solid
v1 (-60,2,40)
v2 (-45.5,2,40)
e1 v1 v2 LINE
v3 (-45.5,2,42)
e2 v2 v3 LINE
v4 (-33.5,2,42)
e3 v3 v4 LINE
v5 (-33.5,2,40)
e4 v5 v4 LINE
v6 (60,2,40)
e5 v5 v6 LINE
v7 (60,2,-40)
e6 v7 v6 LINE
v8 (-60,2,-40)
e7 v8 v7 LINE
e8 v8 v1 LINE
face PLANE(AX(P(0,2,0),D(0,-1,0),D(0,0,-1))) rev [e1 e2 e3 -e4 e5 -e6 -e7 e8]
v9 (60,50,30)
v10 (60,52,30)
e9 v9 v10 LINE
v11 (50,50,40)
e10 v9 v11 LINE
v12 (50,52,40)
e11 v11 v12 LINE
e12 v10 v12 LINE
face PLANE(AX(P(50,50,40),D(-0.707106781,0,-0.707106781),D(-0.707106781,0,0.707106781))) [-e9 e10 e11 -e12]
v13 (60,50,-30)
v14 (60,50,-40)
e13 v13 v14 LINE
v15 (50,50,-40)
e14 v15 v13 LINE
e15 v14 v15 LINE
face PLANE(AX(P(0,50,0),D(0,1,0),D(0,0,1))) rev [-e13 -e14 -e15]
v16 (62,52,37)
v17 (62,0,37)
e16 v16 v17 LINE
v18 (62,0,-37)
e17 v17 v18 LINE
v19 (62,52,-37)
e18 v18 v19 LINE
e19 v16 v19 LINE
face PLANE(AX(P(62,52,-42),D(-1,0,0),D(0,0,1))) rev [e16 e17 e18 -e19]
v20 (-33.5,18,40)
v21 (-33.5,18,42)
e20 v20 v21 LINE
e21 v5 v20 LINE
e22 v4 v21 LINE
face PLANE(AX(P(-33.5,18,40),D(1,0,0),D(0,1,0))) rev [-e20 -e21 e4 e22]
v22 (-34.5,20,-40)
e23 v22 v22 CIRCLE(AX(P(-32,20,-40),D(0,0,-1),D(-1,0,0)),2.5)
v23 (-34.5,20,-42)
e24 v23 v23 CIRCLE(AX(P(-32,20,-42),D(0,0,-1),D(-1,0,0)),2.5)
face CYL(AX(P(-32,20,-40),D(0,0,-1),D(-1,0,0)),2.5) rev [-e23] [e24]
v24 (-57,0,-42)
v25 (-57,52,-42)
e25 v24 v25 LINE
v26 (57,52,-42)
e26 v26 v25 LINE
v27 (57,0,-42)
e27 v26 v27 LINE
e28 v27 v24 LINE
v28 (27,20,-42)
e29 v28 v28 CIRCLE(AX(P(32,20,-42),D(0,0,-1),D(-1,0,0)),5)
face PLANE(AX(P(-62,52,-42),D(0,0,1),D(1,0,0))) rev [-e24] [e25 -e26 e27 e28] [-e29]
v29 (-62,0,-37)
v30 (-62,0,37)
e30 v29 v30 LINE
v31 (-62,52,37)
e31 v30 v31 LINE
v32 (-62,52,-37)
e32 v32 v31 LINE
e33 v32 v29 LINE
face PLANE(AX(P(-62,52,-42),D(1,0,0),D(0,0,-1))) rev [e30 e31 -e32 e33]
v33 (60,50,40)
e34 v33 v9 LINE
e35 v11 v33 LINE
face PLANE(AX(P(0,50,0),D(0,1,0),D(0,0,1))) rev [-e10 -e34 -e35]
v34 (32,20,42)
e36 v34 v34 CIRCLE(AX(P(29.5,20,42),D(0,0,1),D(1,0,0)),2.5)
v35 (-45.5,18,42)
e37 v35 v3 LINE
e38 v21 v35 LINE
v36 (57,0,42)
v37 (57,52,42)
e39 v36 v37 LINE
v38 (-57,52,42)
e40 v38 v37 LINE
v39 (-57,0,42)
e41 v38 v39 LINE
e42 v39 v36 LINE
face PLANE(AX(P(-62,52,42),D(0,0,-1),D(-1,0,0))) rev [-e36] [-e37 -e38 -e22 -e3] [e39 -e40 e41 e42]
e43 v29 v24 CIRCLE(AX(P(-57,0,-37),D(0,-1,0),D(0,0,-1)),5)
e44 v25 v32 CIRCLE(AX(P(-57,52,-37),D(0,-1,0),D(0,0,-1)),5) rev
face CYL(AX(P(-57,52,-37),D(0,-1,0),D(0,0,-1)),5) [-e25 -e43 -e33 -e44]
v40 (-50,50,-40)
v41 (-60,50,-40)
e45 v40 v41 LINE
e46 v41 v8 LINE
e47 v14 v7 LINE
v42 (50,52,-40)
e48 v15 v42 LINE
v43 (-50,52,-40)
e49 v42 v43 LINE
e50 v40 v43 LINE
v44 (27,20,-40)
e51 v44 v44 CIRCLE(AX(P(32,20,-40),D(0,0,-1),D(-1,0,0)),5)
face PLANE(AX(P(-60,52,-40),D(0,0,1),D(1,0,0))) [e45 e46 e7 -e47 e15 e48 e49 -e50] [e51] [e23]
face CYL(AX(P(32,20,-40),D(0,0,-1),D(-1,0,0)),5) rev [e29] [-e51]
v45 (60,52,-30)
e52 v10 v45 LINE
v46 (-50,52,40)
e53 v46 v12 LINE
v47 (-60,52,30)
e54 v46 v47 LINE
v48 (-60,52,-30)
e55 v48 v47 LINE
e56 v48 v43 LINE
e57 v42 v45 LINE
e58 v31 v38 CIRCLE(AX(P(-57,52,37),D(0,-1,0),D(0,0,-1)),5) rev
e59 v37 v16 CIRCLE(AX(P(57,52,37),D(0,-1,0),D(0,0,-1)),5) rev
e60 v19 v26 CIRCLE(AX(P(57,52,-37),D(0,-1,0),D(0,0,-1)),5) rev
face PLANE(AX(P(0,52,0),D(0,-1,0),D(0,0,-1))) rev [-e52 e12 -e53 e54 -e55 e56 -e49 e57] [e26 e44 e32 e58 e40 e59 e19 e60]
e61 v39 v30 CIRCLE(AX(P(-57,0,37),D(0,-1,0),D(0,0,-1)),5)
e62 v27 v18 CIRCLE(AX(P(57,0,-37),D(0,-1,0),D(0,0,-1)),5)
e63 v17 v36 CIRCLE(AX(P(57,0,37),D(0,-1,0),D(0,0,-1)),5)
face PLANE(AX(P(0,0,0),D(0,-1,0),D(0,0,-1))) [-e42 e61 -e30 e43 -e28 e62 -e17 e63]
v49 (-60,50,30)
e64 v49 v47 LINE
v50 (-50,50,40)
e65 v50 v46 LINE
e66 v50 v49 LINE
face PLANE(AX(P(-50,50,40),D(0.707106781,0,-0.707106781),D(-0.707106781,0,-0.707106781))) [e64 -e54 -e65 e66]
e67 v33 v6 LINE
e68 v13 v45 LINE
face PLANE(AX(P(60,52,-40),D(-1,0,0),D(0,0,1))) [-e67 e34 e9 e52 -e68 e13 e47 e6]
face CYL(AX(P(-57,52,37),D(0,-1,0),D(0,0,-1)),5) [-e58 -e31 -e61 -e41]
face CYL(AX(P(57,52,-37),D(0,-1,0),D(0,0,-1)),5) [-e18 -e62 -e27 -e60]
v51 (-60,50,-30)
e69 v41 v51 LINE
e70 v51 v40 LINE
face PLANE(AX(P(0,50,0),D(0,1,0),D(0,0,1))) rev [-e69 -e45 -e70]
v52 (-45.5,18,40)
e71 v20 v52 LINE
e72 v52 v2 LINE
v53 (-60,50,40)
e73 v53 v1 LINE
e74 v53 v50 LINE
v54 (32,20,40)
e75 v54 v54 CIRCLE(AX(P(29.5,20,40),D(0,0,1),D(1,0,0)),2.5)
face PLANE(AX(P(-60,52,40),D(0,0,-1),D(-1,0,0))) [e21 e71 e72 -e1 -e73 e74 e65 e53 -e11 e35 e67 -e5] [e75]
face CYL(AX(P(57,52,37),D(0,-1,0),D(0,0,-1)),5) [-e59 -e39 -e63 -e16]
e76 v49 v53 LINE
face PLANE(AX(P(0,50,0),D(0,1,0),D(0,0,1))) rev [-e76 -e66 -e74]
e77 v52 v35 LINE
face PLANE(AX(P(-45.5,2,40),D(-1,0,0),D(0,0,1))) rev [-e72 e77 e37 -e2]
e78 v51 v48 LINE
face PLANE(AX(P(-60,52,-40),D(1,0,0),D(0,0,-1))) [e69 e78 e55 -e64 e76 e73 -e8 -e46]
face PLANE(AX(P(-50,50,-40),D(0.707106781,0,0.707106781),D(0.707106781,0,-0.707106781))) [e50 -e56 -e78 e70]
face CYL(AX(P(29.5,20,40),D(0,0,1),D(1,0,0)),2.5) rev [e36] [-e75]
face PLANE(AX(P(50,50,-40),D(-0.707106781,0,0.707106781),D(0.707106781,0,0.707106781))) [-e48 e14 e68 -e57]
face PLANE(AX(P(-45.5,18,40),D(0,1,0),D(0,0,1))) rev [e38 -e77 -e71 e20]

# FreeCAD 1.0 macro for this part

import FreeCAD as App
import Part
import Sketcher

V = App.Vector
Q = App.Units.Quantity


def edges_at(feature, points):
    """Names of the edges that pass closest to the given points."""
    edges = feature.Shape.Edges
    near = lambda p: min(range(len(edges)), key=lambda i: edges[i].distToShape(Part.Vertex(*p))[0])
    return sorted({f"Edge{near(p) + 1}" for p in points})

doc = App.newDocument("Part")
body = doc.addObject("PartDesign::Body", "Body")

sketch1 = doc.addObject("Sketcher::SketchObject", "Sketch")
body.addObject(sketch1)
sketch1.AttachmentSupport = (doc.XZ_Plane, [""])
sketch1.MapMode = "FlatFace"
sketch1.addGeometry(Part.LineSegment(V(-60, -40, 0), V(-60, 40, 0)), False)
sketch1.addGeometry(Part.LineSegment(V(-60, 40, 0), V(60, 40, 0)), False)
sketch1.addGeometry(Part.LineSegment(V(60, 40, 0), V(60, -40, 0)), False)
sketch1.addGeometry(Part.LineSegment(V(60, -40, 0), V(-60, -40, 0)), False)
sketch1.addConstraint(Sketcher.Constraint("Coincident", 0, 2, 1, 1))
sketch1.addConstraint(Sketcher.Constraint("Coincident", 1, 2, 2, 1))
sketch1.addConstraint(Sketcher.Constraint("Coincident", 2, 2, 3, 1))
sketch1.addConstraint(Sketcher.Constraint("Coincident", 3, 2, 0, 1))
sketch1.addConstraint(Sketcher.Constraint("Vertical", 0))
sketch1.addConstraint(Sketcher.Constraint("Horizontal", 1))
sketch1.addConstraint(Sketcher.Constraint("Vertical", 2))
sketch1.addConstraint(Sketcher.Constraint("Horizontal", 3))
sketch1.addConstraint(Sketcher.Constraint("Symmetric", 0, 2, 2, 2, -1, 1))
sketch1.addConstraint(Sketcher.Constraint("DistanceX", 1, 1, 1, 2, Q("120 mm")))
sketch1.addConstraint(Sketcher.Constraint("DistanceY", 0, 1, 0, 2, Q("80 mm")))
pad1 = doc.addObject("PartDesign::Pad", "Pad")
body.addObject(pad1)
pad1.Profile = sketch1
pad1.Length = 2
pad1.Reversed = True

sketch2 = doc.addObject("Sketcher::SketchObject", "Sketch001")
body.addObject(sketch2)
sketch2.AttachmentSupport = (doc.XZ_Plane, [""])
sketch2.MapMode = "FlatFace"
sketch2.addGeometry(Part.LineSegment(V(-62, -42, 0), V(-62, 42, 0)), False)
sketch2.addGeometry(Part.LineSegment(V(-62, 42, 0), V(62, 42, 0)), False)
sketch2.addGeometry(Part.LineSegment(V(62, 42, 0), V(62, -42, 0)), False)
sketch2.addGeometry(Part.LineSegment(V(62, -42, 0), V(-62, -42, 0)), False)
sketch2.addGeometry(Part.LineSegment(V(60, 40, 0), V(-60, 40, 0)), False)
sketch2.addGeometry(Part.LineSegment(V(-60, 40, 0), V(-60, -40, 0)), False)
sketch2.addGeometry(Part.LineSegment(V(-60, -40, 0), V(60, -40, 0)), False)
sketch2.addGeometry(Part.LineSegment(V(60, -40, 0), V(60, 40, 0)), False)
sketch2.addConstraint(Sketcher.Constraint("Coincident", 0, 2, 1, 1))
sketch2.addConstraint(Sketcher.Constraint("Coincident", 1, 2, 2, 1))
sketch2.addConstraint(Sketcher.Constraint("Coincident", 2, 2, 3, 1))
sketch2.addConstraint(Sketcher.Constraint("Coincident", 3, 2, 0, 1))
sketch2.addConstraint(Sketcher.Constraint("Coincident", 4, 2, 5, 1))
sketch2.addConstraint(Sketcher.Constraint("Coincident", 5, 2, 6, 1))
sketch2.addConstraint(Sketcher.Constraint("Coincident", 6, 2, 7, 1))
sketch2.addConstraint(Sketcher.Constraint("Coincident", 7, 2, 4, 1))
sketch2.addConstraint(Sketcher.Constraint("Vertical", 0))
sketch2.addConstraint(Sketcher.Constraint("Horizontal", 1))
sketch2.addConstraint(Sketcher.Constraint("Vertical", 2))
sketch2.addConstraint(Sketcher.Constraint("Horizontal", 3))
sketch2.addConstraint(Sketcher.Constraint("Horizontal", 4))
sketch2.addConstraint(Sketcher.Constraint("Vertical", 5))
sketch2.addConstraint(Sketcher.Constraint("Horizontal", 6))
sketch2.addConstraint(Sketcher.Constraint("Vertical", 7))
sketch2.addConstraint(Sketcher.Constraint("Symmetric", 0, 2, 2, 2, -1, 1))
sketch2.addConstraint(Sketcher.Constraint("Symmetric", 4, 2, 6, 2, -1, 1))
sketch2.addConstraint(Sketcher.Constraint("DistanceX", 1, 1, 1, 2, Q("124 mm")))
sketch2.addConstraint(Sketcher.Constraint("DistanceX", 4, 2, 4, 1, Q("120 mm")))
sketch2.addConstraint(Sketcher.Constraint("DistanceY", 0, 1, 0, 2, Q("84 mm")))
sketch2.addConstraint(Sketcher.Constraint("DistanceY", 5, 2, 5, 1, Q("80 mm")))
pad2 = doc.addObject("PartDesign::Pad", "Pad001")
body.addObject(pad2)
pad2.Profile = sketch2
pad2.Length = 52
pad2.Reversed = True

sketch3 = doc.addObject("Sketcher::SketchObject", "Sketch002")
body.addObject(sketch3)
sketch3.AttachmentSupport = (doc.XY_Plane, [""])
sketch3.MapMode = "FlatFace"
sketch3.AttachmentOffset = App.Placement(V(0, 0, 42), App.Rotation())
sketch3.addGeometry(Part.LineSegment(V(-46, 18, 0), V(-46, 2, 0)), False)
sketch3.addGeometry(Part.LineSegment(V(-46, 2, 0), V(-34, 2, 0)), False)
sketch3.addGeometry(Part.LineSegment(V(-34, 2, 0), V(-34, 18, 0)), False)
sketch3.addGeometry(Part.LineSegment(V(-34, 18, 0), V(-46, 18, 0)), False)
sketch3.addConstraint(Sketcher.Constraint("Coincident", 0, 2, 1, 1))
sketch3.addConstraint(Sketcher.Constraint("Coincident", 1, 2, 2, 1))
sketch3.addConstraint(Sketcher.Constraint("Coincident", 2, 2, 3, 1))
sketch3.addConstraint(Sketcher.Constraint("Coincident", 3, 2, 0, 1))
sketch3.addConstraint(Sketcher.Constraint("Vertical", 0))
sketch3.addConstraint(Sketcher.Constraint("Horizontal", 1))
sketch3.addConstraint(Sketcher.Constraint("Vertical", 2))
sketch3.addConstraint(Sketcher.Constraint("Horizontal", 3))
sketch3.addConstraint(Sketcher.Constraint("DistanceX", 1, 1, 1, 2, Q("12 mm")))
sketch3.addConstraint(Sketcher.Constraint("DistanceY", 0, 2, 0, 1, Q("16 mm")))
sketch3.addConstraint(Sketcher.Constraint("DistanceY", -1, 1, 0, 2, Q("2 mm")))
sketch3.addConstraint(Sketcher.Constraint("DistanceX", 0, 2, -1, 1, Q("45.5 mm")))
pocket1 = doc.addObject("PartDesign::Pocket", "Pocket")
body.addObject(pocket1)
pocket1.Profile = sketch3
pocket1.Length = 2

sketch4 = doc.addObject("Sketcher::SketchObject", "Sketch003")
body.addObject(sketch4)
sketch4.AttachmentSupport = (doc.XY_Plane, [""])
sketch4.MapMode = "FlatFace"
sketch4.AttachmentOffset = App.Placement(V(0, 0, 42), App.Rotation())
sketch4.addGeometry(Part.Circle(V(29.5, 20, 0), V(0, 0, 1), 2.5), False)
sketch4.addConstraint(Sketcher.Constraint("Diameter", 0, Q("5 mm")))
sketch4.addConstraint(Sketcher.Constraint("DistanceY", -1, 1, 0, 3, Q("20 mm")))
sketch4.addConstraint(Sketcher.Constraint("DistanceX", -1, 1, 0, 3, Q("29.5 mm")))
pocket2 = doc.addObject("PartDesign::Pocket", "Pocket001")
body.addObject(pocket2)
pocket2.Profile = sketch4
pocket2.Length = 2

sketch5 = doc.addObject("Sketcher::SketchObject", "Sketch004")
body.addObject(sketch5)
sketch5.AttachmentSupport = (doc.XY_Plane, [""])
sketch5.MapMode = "FlatFace"
sketch5.AttachmentOffset = App.Placement(V(0, 0, -42), App.Rotation())
sketch5.addGeometry(Part.Circle(V(32, 20, 0), V(0, 0, 1), 5), False)
sketch5.addGeometry(Part.Circle(V(-32, 20, 0), V(0, 0, 1), 2.5), False)
sketch5.addConstraint(Sketcher.Constraint("Symmetric", 0, 3, 1, 3, -2))
sketch5.addConstraint(Sketcher.Constraint("Diameter", 0, Q("10 mm")))
sketch5.addConstraint(Sketcher.Constraint("Diameter", 1, Q("5 mm")))
sketch5.addConstraint(Sketcher.Constraint("DistanceX", -1, 1, 0, 3, Q("32 mm")))
sketch5.addConstraint(Sketcher.Constraint("DistanceY", -1, 1, 0, 3, Q("20 mm")))
pocket3 = doc.addObject("PartDesign::Pocket", "Pocket002")
body.addObject(pocket3)
pocket3.Profile = sketch5
pocket3.Length = 2
pocket3.Reversed = True
doc.recompute()

fillet = doc.addObject("PartDesign::Fillet", "Fillet")
body.addObject(fillet)
fillet.Base = (pocket3, edges_at(pocket3, [(62, 26, -42)]))
fillet.Radius = 5
doc.recompute()

fillet2 = doc.addObject("PartDesign::Fillet", "Fillet001")
body.addObject(fillet2)
fillet2.Base = (fillet, edges_at(fillet, [(62, 26, 42)]))
fillet2.Radius = 5
doc.recompute()

fillet3 = doc.addObject("PartDesign::Fillet", "Fillet002")
body.addObject(fillet3)
fillet3.Base = (fillet2, edges_at(fillet2, [(-62, 26, -42)]))
fillet3.Radius = 5
doc.recompute()

fillet4 = doc.addObject("PartDesign::Fillet", "Fillet003")
body.addObject(fillet4)
fillet4.Base = (fillet3, edges_at(fillet3, [(-62, 26, 42)]))
fillet4.Radius = 5

sketch6 = doc.addObject("Sketcher::SketchObject", "Sketch005")
body.addObject(sketch6)
sketch6.AttachmentSupport = (doc.XZ_Plane, [""])
sketch6.MapMode = "FlatFace"
sketch6.AttachmentOffset = App.Placement(V(0, 0, -52), App.Rotation())
sketch6.addGeometry(Part.LineSegment(V(-60, -30, 0), V(-50, -40, 0)), False)
sketch6.addGeometry(Part.LineSegment(V(-50, -40, 0), V(-60, -40, 0)), False)
sketch6.addGeometry(Part.LineSegment(V(-60, -40, 0), V(-60, -30, 0)), False)
sketch6.addGeometry(Part.LineSegment(V(-60, 30, 0), V(-60, 40, 0)), False)
sketch6.addGeometry(Part.LineSegment(V(-60, 40, 0), V(-50, 40, 0)), False)
sketch6.addGeometry(Part.LineSegment(V(-50, 40, 0), V(-60, 30, 0)), False)
sketch6.addGeometry(Part.LineSegment(V(60, 30, 0), V(50, 40, 0)), False)
sketch6.addGeometry(Part.LineSegment(V(50, 40, 0), V(60, 40, 0)), False)
sketch6.addGeometry(Part.LineSegment(V(60, 40, 0), V(60, 30, 0)), False)
sketch6.addGeometry(Part.LineSegment(V(60, -30, 0), V(60, -40, 0)), False)
sketch6.addGeometry(Part.LineSegment(V(60, -40, 0), V(50, -40, 0)), False)
sketch6.addGeometry(Part.LineSegment(V(50, -40, 0), V(60, -30, 0)), False)
sketch6.addConstraint(Sketcher.Constraint("Coincident", 0, 2, 1, 1))
sketch6.addConstraint(Sketcher.Constraint("Coincident", 1, 2, 2, 1))
sketch6.addConstraint(Sketcher.Constraint("Coincident", 2, 2, 0, 1))
sketch6.addConstraint(Sketcher.Constraint("Coincident", 3, 2, 4, 1))
sketch6.addConstraint(Sketcher.Constraint("Coincident", 4, 2, 5, 1))
sketch6.addConstraint(Sketcher.Constraint("Coincident", 5, 2, 3, 1))
sketch6.addConstraint(Sketcher.Constraint("Coincident", 6, 2, 7, 1))
sketch6.addConstraint(Sketcher.Constraint("Coincident", 7, 2, 8, 1))
sketch6.addConstraint(Sketcher.Constraint("Coincident", 8, 2, 6, 1))
sketch6.addConstraint(Sketcher.Constraint("Coincident", 9, 2, 10, 1))
sketch6.addConstraint(Sketcher.Constraint("Coincident", 10, 2, 11, 1))
sketch6.addConstraint(Sketcher.Constraint("Coincident", 11, 2, 9, 1))
sketch6.addConstraint(Sketcher.Constraint("Horizontal", 1))
sketch6.addConstraint(Sketcher.Constraint("Vertical", 2))
sketch6.addConstraint(Sketcher.Constraint("Vertical", 3))
sketch6.addConstraint(Sketcher.Constraint("Horizontal", 4))
sketch6.addConstraint(Sketcher.Constraint("Horizontal", 7))
sketch6.addConstraint(Sketcher.Constraint("Vertical", 8))
sketch6.addConstraint(Sketcher.Constraint("Vertical", 9))
sketch6.addConstraint(Sketcher.Constraint("Horizontal", 10))
sketch6.addConstraint(Sketcher.Constraint("Symmetric", 0, 2, 6, 2, -1, 1))
sketch6.addConstraint(Sketcher.Constraint("Symmetric", 2, 2, 8, 2, -1, 1))
sketch6.addConstraint(Sketcher.Constraint("Symmetric", 3, 2, 9, 2, -1, 1))
sketch6.addConstraint(Sketcher.Constraint("Symmetric", 4, 2, 6, 2, -2))
sketch6.addConstraint(Sketcher.Constraint("Symmetric", 5, 2, 8, 2, -2))
sketch6.addConstraint(Sketcher.Constraint("Perpendicular", 0, 5))
sketch6.addConstraint(Sketcher.Constraint("Perpendicular", 6, 11))
sketch6.addConstraint(Sketcher.Constraint("Horizontal", 2, 2, 11, 2))
sketch6.addConstraint(Sketcher.Constraint("DistanceX", 1, 2, 1, 1, Q("10 mm")))
sketch6.addConstraint(Sketcher.Constraint("DistanceX", 0, 2, -1, 1, Q("50 mm")))
sketch6.addConstraint(Sketcher.Constraint("DistanceY", 0, 2, -1, 1, Q("40 mm")))
pad3 = doc.addObject("PartDesign::Pad", "Pad002")
body.addObject(pad3)
pad3.Profile = sketch6
pad3.Length = 2

doc.recompute()
